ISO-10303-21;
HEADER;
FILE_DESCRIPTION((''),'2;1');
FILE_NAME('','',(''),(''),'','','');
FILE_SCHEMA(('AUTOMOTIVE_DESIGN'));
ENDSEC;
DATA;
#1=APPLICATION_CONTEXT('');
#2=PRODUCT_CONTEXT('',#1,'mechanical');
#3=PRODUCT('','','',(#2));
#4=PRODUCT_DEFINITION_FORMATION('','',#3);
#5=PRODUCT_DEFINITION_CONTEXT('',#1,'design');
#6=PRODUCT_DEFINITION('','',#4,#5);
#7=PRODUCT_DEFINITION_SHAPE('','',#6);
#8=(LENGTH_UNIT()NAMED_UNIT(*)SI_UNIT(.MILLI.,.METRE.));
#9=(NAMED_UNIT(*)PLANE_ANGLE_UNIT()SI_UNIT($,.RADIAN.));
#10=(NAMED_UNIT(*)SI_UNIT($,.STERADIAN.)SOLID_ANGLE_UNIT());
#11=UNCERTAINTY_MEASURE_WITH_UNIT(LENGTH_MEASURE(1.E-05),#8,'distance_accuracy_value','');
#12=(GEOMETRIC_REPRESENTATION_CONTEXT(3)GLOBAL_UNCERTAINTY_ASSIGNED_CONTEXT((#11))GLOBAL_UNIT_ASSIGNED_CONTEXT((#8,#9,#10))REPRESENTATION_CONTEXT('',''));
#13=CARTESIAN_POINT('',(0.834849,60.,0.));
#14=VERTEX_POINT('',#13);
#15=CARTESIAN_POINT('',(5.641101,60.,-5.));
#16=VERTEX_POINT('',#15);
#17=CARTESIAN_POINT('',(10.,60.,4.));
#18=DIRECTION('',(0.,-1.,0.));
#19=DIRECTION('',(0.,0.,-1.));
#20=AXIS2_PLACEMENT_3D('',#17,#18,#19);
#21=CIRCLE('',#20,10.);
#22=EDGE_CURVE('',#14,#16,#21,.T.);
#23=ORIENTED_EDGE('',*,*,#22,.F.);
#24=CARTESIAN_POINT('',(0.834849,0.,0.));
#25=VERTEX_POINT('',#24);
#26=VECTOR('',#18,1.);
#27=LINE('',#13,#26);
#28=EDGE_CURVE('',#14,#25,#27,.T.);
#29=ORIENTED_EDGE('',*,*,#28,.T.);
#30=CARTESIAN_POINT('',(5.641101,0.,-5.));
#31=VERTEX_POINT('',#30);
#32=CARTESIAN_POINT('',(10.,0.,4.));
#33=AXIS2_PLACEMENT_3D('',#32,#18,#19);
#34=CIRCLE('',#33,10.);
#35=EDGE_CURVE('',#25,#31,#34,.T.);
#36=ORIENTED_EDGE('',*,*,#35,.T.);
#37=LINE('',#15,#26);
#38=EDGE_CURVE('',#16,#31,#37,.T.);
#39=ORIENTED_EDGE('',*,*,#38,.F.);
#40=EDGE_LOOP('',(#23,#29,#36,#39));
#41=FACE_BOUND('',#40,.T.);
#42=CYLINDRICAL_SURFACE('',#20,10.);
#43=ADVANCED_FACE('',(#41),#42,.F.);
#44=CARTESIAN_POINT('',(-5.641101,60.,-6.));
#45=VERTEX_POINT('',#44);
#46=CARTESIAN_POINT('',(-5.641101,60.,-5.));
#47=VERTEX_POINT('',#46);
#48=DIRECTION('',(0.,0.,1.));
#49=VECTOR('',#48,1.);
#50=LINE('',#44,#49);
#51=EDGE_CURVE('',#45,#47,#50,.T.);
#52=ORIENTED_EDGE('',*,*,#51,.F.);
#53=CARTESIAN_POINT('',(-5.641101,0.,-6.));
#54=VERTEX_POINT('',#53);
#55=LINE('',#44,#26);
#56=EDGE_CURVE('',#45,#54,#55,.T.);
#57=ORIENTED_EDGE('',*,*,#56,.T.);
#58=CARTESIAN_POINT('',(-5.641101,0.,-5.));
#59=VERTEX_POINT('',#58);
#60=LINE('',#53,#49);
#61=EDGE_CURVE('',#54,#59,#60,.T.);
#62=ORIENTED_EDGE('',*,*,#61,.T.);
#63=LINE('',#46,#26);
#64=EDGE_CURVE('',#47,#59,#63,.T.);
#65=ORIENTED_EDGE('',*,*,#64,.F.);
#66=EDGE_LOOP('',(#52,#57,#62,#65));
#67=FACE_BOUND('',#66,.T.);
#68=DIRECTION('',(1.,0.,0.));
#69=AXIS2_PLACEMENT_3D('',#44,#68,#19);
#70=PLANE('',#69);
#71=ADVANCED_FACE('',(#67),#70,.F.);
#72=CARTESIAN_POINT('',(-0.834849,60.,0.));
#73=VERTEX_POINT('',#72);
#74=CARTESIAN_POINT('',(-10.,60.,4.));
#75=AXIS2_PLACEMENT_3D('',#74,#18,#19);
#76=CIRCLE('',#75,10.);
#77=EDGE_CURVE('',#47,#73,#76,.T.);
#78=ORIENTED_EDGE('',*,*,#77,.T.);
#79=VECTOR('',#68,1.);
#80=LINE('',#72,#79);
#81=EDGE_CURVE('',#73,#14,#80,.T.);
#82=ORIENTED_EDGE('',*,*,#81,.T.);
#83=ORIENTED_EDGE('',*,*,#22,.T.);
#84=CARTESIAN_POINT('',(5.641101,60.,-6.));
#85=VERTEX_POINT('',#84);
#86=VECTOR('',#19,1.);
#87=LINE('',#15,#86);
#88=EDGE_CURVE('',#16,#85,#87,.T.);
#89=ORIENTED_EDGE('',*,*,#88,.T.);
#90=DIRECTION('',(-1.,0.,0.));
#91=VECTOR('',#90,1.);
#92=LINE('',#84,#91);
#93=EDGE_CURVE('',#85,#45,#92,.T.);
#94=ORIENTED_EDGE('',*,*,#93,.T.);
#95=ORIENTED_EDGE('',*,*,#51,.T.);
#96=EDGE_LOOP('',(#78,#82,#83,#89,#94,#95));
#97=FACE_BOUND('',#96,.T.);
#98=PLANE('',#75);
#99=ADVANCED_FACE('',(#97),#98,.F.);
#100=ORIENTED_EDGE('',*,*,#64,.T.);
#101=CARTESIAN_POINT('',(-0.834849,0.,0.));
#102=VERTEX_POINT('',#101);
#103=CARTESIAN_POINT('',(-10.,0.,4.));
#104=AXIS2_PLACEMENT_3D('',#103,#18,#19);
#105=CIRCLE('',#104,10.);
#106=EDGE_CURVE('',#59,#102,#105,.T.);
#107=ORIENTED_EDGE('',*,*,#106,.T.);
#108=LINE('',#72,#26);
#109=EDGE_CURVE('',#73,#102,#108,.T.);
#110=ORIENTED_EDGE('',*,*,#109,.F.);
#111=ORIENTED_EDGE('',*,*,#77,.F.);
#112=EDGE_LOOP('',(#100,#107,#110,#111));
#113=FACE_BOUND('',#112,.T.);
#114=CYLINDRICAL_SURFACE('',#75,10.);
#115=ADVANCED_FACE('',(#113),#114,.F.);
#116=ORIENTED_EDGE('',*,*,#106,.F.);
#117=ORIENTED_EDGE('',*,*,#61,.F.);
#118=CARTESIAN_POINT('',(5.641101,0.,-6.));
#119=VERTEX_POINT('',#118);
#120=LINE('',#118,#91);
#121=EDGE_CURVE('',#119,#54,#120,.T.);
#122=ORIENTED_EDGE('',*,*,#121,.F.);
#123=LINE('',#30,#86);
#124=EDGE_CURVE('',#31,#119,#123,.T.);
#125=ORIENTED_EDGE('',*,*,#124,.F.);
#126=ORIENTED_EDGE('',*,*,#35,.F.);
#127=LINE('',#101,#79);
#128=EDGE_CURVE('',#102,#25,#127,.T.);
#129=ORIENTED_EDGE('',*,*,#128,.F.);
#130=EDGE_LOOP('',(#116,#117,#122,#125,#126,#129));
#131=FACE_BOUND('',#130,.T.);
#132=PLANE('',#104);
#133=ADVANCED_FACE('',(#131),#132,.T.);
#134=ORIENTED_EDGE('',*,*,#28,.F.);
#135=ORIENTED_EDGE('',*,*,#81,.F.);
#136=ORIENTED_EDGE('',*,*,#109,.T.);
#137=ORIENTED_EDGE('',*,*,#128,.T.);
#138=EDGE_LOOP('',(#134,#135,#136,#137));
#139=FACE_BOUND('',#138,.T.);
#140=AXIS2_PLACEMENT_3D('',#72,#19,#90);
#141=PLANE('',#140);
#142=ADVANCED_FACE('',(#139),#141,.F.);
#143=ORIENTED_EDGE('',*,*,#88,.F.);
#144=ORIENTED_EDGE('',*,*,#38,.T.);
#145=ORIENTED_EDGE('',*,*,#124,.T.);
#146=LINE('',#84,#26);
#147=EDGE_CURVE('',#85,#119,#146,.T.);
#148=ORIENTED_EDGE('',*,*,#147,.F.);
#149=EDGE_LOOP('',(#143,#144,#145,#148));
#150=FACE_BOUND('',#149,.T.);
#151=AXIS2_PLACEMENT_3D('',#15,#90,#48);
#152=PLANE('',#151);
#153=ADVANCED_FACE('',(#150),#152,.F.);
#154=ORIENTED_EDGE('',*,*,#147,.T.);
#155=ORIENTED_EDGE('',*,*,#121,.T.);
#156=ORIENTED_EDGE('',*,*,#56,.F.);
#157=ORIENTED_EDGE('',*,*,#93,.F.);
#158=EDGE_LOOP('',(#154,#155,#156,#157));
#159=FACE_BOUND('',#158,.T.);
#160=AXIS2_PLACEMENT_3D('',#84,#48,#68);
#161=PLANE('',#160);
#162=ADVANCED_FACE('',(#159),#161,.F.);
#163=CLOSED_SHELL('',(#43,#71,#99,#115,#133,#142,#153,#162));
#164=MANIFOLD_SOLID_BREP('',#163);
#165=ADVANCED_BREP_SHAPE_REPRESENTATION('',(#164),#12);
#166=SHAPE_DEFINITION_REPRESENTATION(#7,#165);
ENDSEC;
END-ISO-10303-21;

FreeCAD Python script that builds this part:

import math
import FreeCAD as App
import Part
import Sketcher

doc = App.newDocument("Part")
body = doc.addObject("PartDesign::Body", "Body")

# Sketch on XZ plane
sketch1 = body.newObject("Sketcher::SketchObject", "Sketch")
sketch1.AttachmentSupport = (doc.getObject("XZ_Plane"), [""])
sketch1.MapMode = "FlatFace"
sketch1.addGeometry([
    Part.LineSegment(App.Vector(-0.834849, 0, 0), App.Vector(0.834849, 0, 0)),  # 0
    Part.ArcOfCircle(Part.Circle(App.Vector(10, 4, 0), App.Vector(0, 0, 1), 10), math.radians(-156.421822), math.radians(-115.841933)),  # 1
    Part.LineSegment(App.Vector(5.641101, -5, 0), App.Vector(5.641101, -6, 0)),  # 2
    Part.LineSegment(App.Vector(5.641101, -6, 0), App.Vector(-5.641101, -6, 0)),  # 3
    Part.LineSegment(App.Vector(-5.641101, -6, 0), App.Vector(-5.641101, -5, 0)),  # 4
    Part.ArcOfCircle(Part.Circle(App.Vector(-10, 4, 0), App.Vector(0, 0, 1), 10), math.radians(-64.158067), math.radians(-23.578178)),  # 5
], False)
sketch1.addConstraint([
    Sketcher.Constraint("Coincident", 0, 2, 1, 1),
    Sketcher.Constraint("Coincident", 1, 2, 2, 1),
    Sketcher.Constraint("Coincident", 2, 2, 3, 1),
    Sketcher.Constraint("Coincident", 3, 2, 4, 1),
    Sketcher.Constraint("Coincident", 4, 2, 5, 1),
    Sketcher.Constraint("Coincident", 5, 2, 0, 1),
    Sketcher.Constraint("Horizontal", 0),
    Sketcher.Constraint("Vertical", 2),
    Sketcher.Constraint("Horizontal", 3),
    Sketcher.Constraint("Vertical", 4),
    Sketcher.Constraint("Equal", 1, 5),
    Sketcher.Constraint("Symmetric", 0, 2, 5, 2, -1, 1),
    Sketcher.Constraint("Symmetric", 1, 2, 4, 2, -2),
    Sketcher.Constraint("Radius", 1, 10.0),
    Sketcher.Constraint("DistanceY", 2, 2, 2, 1, 1.0),
    Sketcher.Constraint("DistanceX", -1, 1, 1, 3, 10.0),
    Sketcher.Constraint("DistanceY", -1, 1, 1, 3, 4.0),
    Sketcher.Constraint("DistanceY", 1, 2, -1, 1, 5.0),
])
pad1 = body.newObject("PartDesign::Pad", "Pad")
pad1.Profile = sketch1
pad1.Length = 60
pad1.Reversed = True

doc.recompute()
